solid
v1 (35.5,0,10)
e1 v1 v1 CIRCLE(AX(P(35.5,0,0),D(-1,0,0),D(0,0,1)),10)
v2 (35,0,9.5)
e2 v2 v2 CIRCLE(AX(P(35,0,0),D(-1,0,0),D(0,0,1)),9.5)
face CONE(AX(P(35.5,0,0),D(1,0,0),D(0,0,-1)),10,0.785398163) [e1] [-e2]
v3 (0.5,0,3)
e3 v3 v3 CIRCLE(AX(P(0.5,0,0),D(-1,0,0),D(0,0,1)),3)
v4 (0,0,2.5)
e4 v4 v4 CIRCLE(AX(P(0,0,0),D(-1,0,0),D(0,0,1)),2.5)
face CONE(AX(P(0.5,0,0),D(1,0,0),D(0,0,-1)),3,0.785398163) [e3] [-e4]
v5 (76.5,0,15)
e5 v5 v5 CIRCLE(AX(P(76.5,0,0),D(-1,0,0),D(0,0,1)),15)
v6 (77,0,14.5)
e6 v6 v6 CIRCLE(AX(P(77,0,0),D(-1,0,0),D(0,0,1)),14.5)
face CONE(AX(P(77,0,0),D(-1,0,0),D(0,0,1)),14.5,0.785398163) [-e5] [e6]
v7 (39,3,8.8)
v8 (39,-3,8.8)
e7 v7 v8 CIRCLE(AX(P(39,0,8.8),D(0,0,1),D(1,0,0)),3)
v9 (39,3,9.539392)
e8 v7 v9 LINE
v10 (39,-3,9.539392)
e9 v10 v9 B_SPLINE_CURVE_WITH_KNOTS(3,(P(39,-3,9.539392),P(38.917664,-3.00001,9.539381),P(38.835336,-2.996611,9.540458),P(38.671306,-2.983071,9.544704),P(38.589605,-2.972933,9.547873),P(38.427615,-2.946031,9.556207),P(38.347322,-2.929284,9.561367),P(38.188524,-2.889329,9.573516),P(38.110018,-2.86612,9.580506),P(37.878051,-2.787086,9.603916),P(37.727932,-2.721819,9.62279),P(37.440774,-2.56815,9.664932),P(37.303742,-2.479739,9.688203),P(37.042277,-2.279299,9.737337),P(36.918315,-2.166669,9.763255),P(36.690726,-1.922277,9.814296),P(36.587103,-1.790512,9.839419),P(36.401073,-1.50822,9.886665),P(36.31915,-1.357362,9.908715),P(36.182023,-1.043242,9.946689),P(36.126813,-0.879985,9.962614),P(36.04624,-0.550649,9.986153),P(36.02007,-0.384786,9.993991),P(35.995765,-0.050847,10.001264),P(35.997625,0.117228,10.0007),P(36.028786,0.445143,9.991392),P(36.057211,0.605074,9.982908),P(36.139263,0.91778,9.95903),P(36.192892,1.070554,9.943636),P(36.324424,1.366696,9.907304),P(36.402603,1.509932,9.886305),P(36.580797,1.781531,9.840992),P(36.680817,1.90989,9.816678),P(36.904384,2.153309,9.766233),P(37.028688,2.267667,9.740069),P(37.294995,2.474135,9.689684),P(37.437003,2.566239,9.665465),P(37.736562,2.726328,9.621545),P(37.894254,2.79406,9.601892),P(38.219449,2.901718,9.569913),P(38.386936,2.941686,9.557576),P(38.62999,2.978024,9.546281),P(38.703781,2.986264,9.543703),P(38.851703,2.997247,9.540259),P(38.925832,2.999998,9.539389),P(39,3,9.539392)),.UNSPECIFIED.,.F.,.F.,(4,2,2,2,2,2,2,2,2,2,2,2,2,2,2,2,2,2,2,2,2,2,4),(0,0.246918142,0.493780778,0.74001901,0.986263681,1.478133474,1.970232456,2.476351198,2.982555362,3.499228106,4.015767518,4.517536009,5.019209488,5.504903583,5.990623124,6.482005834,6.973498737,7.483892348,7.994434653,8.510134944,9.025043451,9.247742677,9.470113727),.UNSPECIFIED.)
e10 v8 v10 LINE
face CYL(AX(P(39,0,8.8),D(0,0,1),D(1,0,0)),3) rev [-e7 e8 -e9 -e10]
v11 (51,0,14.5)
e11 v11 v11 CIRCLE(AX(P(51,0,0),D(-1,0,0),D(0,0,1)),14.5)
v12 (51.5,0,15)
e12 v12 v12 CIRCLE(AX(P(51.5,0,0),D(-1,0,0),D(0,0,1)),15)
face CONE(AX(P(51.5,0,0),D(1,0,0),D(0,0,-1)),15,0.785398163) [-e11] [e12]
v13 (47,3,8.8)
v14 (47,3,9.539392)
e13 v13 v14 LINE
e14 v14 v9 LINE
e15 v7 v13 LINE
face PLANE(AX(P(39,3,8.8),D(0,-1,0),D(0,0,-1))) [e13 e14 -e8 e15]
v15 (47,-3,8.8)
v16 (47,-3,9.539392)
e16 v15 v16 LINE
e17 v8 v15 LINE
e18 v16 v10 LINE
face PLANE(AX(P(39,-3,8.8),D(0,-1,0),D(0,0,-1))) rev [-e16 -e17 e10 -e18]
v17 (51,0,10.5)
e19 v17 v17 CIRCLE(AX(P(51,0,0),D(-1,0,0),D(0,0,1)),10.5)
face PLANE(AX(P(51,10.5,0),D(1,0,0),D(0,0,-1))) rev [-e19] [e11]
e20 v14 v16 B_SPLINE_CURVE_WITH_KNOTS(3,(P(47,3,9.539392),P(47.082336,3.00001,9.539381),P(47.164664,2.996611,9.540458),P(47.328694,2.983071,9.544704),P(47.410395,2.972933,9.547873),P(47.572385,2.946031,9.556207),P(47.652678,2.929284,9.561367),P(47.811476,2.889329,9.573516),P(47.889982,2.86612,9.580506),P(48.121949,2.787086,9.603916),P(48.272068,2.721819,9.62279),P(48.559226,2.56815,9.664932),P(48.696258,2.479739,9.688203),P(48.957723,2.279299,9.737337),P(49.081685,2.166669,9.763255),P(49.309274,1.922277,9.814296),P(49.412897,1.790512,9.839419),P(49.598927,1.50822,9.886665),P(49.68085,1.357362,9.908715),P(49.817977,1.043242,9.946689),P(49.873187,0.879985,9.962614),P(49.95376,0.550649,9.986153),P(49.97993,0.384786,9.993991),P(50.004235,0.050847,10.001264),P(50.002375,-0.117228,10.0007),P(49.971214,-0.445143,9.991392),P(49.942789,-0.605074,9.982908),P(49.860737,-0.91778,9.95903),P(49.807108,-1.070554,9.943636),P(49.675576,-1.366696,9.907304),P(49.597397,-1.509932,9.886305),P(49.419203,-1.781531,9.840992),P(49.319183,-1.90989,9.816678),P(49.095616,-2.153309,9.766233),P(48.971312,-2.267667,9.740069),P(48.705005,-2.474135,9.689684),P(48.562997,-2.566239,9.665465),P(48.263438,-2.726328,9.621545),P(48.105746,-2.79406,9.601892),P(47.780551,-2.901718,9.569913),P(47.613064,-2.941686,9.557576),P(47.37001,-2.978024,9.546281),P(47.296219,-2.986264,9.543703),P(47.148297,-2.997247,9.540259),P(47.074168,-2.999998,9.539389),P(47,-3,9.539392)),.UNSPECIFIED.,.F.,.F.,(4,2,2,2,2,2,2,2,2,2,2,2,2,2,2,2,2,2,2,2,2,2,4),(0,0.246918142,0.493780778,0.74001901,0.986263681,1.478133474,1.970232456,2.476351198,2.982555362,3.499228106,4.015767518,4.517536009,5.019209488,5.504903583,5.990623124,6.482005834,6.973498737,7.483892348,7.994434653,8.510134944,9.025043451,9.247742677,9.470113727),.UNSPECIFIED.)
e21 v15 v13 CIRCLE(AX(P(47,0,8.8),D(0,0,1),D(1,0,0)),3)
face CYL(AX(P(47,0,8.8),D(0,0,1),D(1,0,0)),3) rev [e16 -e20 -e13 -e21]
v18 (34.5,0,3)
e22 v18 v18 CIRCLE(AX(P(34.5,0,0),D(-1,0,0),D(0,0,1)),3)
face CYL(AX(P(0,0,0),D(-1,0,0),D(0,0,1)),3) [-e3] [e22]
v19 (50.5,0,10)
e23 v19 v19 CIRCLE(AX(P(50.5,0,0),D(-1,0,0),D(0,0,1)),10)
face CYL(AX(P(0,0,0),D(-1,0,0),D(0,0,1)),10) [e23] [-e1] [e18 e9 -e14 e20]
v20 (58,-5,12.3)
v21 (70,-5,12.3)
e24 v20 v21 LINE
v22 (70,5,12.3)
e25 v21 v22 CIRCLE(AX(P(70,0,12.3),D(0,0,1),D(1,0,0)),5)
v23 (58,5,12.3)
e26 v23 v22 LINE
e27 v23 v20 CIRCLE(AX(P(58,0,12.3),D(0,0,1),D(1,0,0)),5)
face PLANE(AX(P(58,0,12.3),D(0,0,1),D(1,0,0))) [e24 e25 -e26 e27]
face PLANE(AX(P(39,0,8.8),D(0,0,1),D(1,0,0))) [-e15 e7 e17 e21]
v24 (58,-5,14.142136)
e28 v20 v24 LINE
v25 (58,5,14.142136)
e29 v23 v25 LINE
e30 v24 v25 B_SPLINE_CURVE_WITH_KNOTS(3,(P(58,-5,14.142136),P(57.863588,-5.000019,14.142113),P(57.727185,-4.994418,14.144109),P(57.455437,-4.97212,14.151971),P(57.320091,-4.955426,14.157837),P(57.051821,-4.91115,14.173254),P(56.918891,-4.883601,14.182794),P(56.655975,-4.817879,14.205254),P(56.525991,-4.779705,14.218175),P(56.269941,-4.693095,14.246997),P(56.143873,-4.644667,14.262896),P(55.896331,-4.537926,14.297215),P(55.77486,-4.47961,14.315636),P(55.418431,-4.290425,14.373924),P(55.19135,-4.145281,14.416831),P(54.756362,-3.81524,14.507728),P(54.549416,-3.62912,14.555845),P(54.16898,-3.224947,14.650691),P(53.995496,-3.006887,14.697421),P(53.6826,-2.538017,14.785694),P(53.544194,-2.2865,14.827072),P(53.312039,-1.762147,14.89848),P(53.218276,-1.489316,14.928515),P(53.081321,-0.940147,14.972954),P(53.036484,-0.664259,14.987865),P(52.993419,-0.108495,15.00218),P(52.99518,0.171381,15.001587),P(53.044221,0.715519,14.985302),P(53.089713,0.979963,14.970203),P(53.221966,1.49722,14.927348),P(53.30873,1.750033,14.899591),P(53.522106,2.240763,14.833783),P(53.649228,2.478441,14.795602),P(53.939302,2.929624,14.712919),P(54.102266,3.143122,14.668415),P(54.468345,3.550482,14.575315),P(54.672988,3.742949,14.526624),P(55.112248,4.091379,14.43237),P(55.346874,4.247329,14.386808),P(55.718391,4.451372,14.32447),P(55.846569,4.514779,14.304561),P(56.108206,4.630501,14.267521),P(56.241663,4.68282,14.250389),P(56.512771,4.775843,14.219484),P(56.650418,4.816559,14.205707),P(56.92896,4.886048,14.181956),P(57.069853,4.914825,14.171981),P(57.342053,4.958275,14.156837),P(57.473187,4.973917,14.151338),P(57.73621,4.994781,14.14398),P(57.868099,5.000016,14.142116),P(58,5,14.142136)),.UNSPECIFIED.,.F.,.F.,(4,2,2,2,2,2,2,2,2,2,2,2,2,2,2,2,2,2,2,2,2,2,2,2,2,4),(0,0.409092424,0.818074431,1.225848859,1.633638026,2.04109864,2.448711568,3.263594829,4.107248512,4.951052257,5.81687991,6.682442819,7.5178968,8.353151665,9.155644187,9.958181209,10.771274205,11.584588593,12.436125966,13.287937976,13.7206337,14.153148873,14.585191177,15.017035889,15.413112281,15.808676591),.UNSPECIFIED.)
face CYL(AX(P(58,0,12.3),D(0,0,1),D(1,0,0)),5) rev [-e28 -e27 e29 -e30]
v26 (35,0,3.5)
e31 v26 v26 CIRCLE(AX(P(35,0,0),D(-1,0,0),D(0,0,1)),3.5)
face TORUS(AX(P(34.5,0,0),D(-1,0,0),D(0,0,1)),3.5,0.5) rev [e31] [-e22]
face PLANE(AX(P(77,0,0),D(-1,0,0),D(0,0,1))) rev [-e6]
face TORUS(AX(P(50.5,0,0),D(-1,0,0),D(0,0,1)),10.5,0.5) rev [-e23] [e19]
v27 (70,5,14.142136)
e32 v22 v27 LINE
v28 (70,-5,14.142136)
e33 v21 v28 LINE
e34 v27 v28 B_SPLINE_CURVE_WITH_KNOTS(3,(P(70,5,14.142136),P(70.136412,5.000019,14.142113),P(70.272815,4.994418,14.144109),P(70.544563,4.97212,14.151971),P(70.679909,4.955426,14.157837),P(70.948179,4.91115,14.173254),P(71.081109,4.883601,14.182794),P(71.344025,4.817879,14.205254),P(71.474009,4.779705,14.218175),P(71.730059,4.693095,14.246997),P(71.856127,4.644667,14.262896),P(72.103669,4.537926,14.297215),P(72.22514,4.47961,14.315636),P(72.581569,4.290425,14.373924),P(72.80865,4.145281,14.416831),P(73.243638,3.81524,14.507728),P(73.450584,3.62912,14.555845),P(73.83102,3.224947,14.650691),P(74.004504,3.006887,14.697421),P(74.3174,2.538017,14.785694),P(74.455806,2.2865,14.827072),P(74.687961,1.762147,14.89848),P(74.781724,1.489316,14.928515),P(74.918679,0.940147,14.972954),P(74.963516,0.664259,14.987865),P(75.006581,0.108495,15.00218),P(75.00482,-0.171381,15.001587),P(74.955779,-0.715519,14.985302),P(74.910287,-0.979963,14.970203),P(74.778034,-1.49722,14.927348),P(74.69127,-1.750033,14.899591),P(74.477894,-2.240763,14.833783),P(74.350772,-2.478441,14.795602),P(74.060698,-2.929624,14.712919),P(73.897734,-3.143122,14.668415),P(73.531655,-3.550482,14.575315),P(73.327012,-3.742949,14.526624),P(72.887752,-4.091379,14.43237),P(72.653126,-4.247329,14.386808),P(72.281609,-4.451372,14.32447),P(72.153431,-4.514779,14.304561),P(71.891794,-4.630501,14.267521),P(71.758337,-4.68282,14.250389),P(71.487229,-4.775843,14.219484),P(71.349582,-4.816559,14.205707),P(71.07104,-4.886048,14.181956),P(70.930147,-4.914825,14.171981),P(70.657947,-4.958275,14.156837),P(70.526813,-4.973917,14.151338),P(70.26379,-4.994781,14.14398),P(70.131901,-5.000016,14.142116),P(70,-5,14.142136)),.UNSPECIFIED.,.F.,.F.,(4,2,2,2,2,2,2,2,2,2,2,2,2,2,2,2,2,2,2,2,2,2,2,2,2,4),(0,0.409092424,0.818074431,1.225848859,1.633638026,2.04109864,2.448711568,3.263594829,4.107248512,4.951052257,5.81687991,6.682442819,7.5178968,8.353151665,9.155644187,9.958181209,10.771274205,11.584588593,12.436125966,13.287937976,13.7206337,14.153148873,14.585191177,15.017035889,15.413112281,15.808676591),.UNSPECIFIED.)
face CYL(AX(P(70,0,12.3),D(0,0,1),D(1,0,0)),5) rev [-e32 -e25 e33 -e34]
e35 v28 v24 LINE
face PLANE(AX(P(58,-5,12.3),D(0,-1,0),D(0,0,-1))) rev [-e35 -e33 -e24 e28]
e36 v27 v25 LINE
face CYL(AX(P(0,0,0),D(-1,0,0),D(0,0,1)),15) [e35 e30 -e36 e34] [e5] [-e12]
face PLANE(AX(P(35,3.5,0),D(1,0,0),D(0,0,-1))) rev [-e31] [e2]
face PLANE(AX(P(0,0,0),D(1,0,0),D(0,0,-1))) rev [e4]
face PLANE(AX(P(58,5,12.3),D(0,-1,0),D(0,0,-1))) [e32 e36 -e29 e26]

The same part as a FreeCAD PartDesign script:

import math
import FreeCAD as App
import Part
import Sketcher

doc = App.newDocument("Part")
body = doc.addObject("PartDesign::Body", "Body")

sketch1 = body.newObject("Sketcher::SketchObject", "Sketch")
sketch1.AttachmentSupport = (doc.getObject("XY_Plane"), [""])
sketch1.MapMode = "FlatFace"
sketch1.addGeometry(Part.LineSegment(App.Vector(0, 2.5, 0), App.Vector(0, 0, 0)), False)
sketch1.addGeometry(Part.LineSegment(App.Vector(0, 0, 0), App.Vector(77, 0, 0)), False)
sketch1.addGeometry(Part.LineSegment(App.Vector(77, 0, 0), App.Vector(77, 14.5, 0)), False)
sketch1.addGeometry(Part.LineSegment(App.Vector(77, 14.5, 0), App.Vector(76.5, 15, 0)), False)
sketch1.addGeometry(Part.LineSegment(App.Vector(76.5, 15, 0), App.Vector(51.5, 15, 0)), False)
sketch1.addGeometry(Part.LineSegment(App.Vector(51.5, 15, 0), App.Vector(51, 14.5, 0)), False)
sketch1.addGeometry(Part.LineSegment(App.Vector(51, 14.5, 0), App.Vector(51, 10.5, 0)), False)
sketch1.addGeometry(Part.ArcOfCircle(Part.Circle(App.Vector(50.5, 10.5, 0), App.Vector(0, 0, 1), 0.5), math.radians(-90), math.radians(0)), False)
sketch1.addGeometry(Part.LineSegment(App.Vector(50.5, 10, 0), App.Vector(35.5, 10, 0)), False)
sketch1.addGeometry(Part.LineSegment(App.Vector(35.5, 10, 0), App.Vector(35, 9.5, 0)), False)
sketch1.addGeometry(Part.LineSegment(App.Vector(35, 9.5, 0), App.Vector(35, 3.5, 0)), False)
sketch1.addGeometry(Part.ArcOfCircle(Part.Circle(App.Vector(34.5, 3.5, 0), App.Vector(0, 0, 1), 0.5), math.radians(-90), math.radians(0)), False)
sketch1.addGeometry(Part.LineSegment(App.Vector(34.5, 3, 0), App.Vector(0.5, 3, 0)), False)
sketch1.addGeometry(Part.LineSegment(App.Vector(0.5, 3, 0), App.Vector(0, 2.5, 0)), False)
sketch1.addConstraint(Sketcher.Constraint("Coincident", 0, 2, 1, 1))
sketch1.addConstraint(Sketcher.Constraint("Coincident", 1, 2, 2, 1))
sketch1.addConstraint(Sketcher.Constraint("Coincident", 2, 2, 3, 1))
sketch1.addConstraint(Sketcher.Constraint("Coincident", 3, 2, 4, 1))
sketch1.addConstraint(Sketcher.Constraint("Coincident", 4, 2, 5, 1))
sketch1.addConstraint(Sketcher.Constraint("Coincident", 5, 2, 6, 1))
sketch1.addConstraint(Sketcher.Constraint("Tangent", 6, 2, 7, 2))
sketch1.addConstraint(Sketcher.Constraint("Tangent", 7, 1, 8, 1))
sketch1.addConstraint(Sketcher.Constraint("Coincident", 8, 2, 9, 1))
sketch1.addConstraint(Sketcher.Constraint("Coincident", 9, 2, 10, 1))
sketch1.addConstraint(Sketcher.Constraint("Tangent", 10, 2, 11, 2))
sketch1.addConstraint(Sketcher.Constraint("Tangent", 11, 1, 12, 1))
sketch1.addConstraint(Sketcher.Constraint("Coincident", 12, 2, 13, 1))
sketch1.addConstraint(Sketcher.Constraint("Coincident", 13, 2, 0, 1))
sketch1.addConstraint(Sketcher.Constraint("Vertical", 0))
sketch1.addConstraint(Sketcher.Constraint("Horizontal", 1))
sketch1.addConstraint(Sketcher.Constraint("Vertical", 2))
sketch1.addConstraint(Sketcher.Constraint("Horizontal", 4))
sketch1.addConstraint(Sketcher.Constraint("Vertical", 6))
sketch1.addConstraint(Sketcher.Constraint("Horizontal", 8))
sketch1.addConstraint(Sketcher.Constraint("Vertical", 10))
sketch1.addConstraint(Sketcher.Constraint("Horizontal", 12))
sketch1.addConstraint(Sketcher.Constraint("Coincident", 0, 2, -1, 1))
sketch1.addConstraint(Sketcher.Constraint("Equal", 7, 11))
sketch1.addConstraint(Sketcher.Constraint("Perpendicular", 3, 5))
sketch1.addConstraint(Sketcher.Constraint("Parallel", 5, 9))
sketch1.addConstraint(Sketcher.Constraint("Parallel", 9, 13))
sketch1.addConstraint(Sketcher.Constraint("Horizontal", 2, 2, 5, 2))
sketch1.addConstraint(Sketcher.Constraint("Equal", 3, 5))
sketch1.addConstraint(Sketcher.Constraint("Equal", 5, 9))
sketch1.addConstraint(Sketcher.Constraint("Equal", 9, 13))
sketch1.addConstraint(Sketcher.Constraint("Radius", 7, 0.5))
sketch1.addConstraint(Sketcher.Constraint("DistanceX", 1, 1, 1, 2, 77.0))
sketch1.addConstraint(Sketcher.Constraint("DistanceX", 4, 2, 4, 1, 25.0))
sketch1.addConstraint(Sketcher.Constraint("DistanceX", 8, 2, 8, 1, 15.0))
sketch1.addConstraint(Sketcher.Constraint("DistanceX", 12, 2, 12, 1, 34.0))
sketch1.addConstraint(Sketcher.Constraint("DistanceY", 6, 2, 6, 1, 4.0))
sketch1.addConstraint(Sketcher.Constraint("DistanceY", 10, 2, 10, 1, 6.0))
sketch1.addConstraint(Sketcher.Constraint("DistanceY", 0, 2, 0, 1, 2.5))
revolution = body.newObject("PartDesign::Revolution", "Revolution")
revolution.Profile = sketch1
revolution.ReferenceAxis = (sketch1, ["H_Axis"])
revolution.Angle = 360

sketch2 = body.newObject("Sketcher::SketchObject", "Sketch001")
sketch2.AttachmentSupport = (doc.getObject("XY_Plane"), [""])
sketch2.MapMode = "FlatFace"
sketch2.AttachmentOffset = App.Placement(App.Vector(0, 0, 10), App.Rotation())
sketch2.addGeometry(Part.LineSegment(App.Vector(47, 3, 0), App.Vector(39, 3, 0)), False)
sketch2.addGeometry(Part.ArcOfCircle(Part.Circle(App.Vector(39, 0, 0), App.Vector(0, 0, 1), 3), math.radians(90), math.radians(270)), False)
sketch2.addGeometry(Part.LineSegment(App.Vector(39, -3, 0), App.Vector(47, -3, 0)), False)
sketch2.addGeometry(Part.ArcOfCircle(Part.Circle(App.Vector(47, 0, 0), App.Vector(0, 0, 1), 3), math.radians(-90), math.radians(90)), False)
sketch2.addConstraint(Sketcher.Constraint("Tangent", 0, 2, 1, 1))
sketch2.addConstraint(Sketcher.Constraint("Tangent", 1, 2, 2, 1))
sketch2.addConstraint(Sketcher.Constraint("Tangent", 2, 2, 3, 1))
sketch2.addConstraint(Sketcher.Constraint("Tangent", 3, 2, 0, 1))
sketch2.addConstraint(Sketcher.Constraint("Horizontal", 0))
sketch2.addConstraint(Sketcher.Constraint("Horizontal", 2))
sketch2.addConstraint(Sketcher.Constraint("PointOnObject", 1, 3, -1))
sketch2.addConstraint(Sketcher.Constraint("Radius", 1, 3.0))
sketch2.addConstraint(Sketcher.Constraint("DistanceX", 0, 2, 0, 1, 8.0))
sketch2.addConstraint(Sketcher.Constraint("DistanceX", -1, 1, 1, 3, 39.0))
pocket1 = body.newObject("PartDesign::Pocket", "Pocket")
pocket1.Profile = sketch2
pocket1.Length = 1.2

sketch3 = body.newObject("Sketcher::SketchObject", "Sketch002")
sketch3.AttachmentSupport = (doc.getObject("XY_Plane"), [""])
sketch3.MapMode = "FlatFace"
sketch3.AttachmentOffset = App.Placement(App.Vector(0, 0, 15), App.Rotation())
sketch3.addGeometry(Part.LineSegment(App.Vector(70, 5, 0), App.Vector(58, 5, 0)), False)
sketch3.addGeometry(Part.ArcOfCircle(Part.Circle(App.Vector(58, 0, 0), App.Vector(0, 0, 1), 5), math.radians(90), math.radians(270)), False)
sketch3.addGeometry(Part.LineSegment(App.Vector(58, -5, 0), App.Vector(70, -5, 0)), False)
sketch3.addGeometry(Part.ArcOfCircle(Part.Circle(App.Vector(70, 0, 0), App.Vector(0, 0, 1), 5), math.radians(-90), math.radians(90)), False)
sketch3.addConstraint(Sketcher.Constraint("Tangent", 0, 2, 1, 1))
sketch3.addConstraint(Sketcher.Constraint("Tangent", 1, 2, 2, 1))
sketch3.addConstraint(Sketcher.Constraint("Tangent", 2, 2, 3, 1))
sketch3.addConstraint(Sketcher.Constraint("Tangent", 3, 2, 0, 1))
sketch3.addConstraint(Sketcher.Constraint("Horizontal", 0))
sketch3.addConstraint(Sketcher.Constraint("Horizontal", 2))
sketch3.addConstraint(Sketcher.Constraint("PointOnObject", 1, 3, -1))
sketch3.addConstraint(Sketcher.Constraint("Radius", 1, 5.0))
sketch3.addConstraint(Sketcher.Constraint("DistanceX", 0, 2, 0, 1, 12.0))
sketch3.addConstraint(Sketcher.Constraint("DistanceX", -1, 1, 1, 3, 58.0))
pocket2 = body.newObject("PartDesign::Pocket", "Pocket001")
pocket2.Profile = sketch3
pocket2.Length = 2.7

doc.recompute()
